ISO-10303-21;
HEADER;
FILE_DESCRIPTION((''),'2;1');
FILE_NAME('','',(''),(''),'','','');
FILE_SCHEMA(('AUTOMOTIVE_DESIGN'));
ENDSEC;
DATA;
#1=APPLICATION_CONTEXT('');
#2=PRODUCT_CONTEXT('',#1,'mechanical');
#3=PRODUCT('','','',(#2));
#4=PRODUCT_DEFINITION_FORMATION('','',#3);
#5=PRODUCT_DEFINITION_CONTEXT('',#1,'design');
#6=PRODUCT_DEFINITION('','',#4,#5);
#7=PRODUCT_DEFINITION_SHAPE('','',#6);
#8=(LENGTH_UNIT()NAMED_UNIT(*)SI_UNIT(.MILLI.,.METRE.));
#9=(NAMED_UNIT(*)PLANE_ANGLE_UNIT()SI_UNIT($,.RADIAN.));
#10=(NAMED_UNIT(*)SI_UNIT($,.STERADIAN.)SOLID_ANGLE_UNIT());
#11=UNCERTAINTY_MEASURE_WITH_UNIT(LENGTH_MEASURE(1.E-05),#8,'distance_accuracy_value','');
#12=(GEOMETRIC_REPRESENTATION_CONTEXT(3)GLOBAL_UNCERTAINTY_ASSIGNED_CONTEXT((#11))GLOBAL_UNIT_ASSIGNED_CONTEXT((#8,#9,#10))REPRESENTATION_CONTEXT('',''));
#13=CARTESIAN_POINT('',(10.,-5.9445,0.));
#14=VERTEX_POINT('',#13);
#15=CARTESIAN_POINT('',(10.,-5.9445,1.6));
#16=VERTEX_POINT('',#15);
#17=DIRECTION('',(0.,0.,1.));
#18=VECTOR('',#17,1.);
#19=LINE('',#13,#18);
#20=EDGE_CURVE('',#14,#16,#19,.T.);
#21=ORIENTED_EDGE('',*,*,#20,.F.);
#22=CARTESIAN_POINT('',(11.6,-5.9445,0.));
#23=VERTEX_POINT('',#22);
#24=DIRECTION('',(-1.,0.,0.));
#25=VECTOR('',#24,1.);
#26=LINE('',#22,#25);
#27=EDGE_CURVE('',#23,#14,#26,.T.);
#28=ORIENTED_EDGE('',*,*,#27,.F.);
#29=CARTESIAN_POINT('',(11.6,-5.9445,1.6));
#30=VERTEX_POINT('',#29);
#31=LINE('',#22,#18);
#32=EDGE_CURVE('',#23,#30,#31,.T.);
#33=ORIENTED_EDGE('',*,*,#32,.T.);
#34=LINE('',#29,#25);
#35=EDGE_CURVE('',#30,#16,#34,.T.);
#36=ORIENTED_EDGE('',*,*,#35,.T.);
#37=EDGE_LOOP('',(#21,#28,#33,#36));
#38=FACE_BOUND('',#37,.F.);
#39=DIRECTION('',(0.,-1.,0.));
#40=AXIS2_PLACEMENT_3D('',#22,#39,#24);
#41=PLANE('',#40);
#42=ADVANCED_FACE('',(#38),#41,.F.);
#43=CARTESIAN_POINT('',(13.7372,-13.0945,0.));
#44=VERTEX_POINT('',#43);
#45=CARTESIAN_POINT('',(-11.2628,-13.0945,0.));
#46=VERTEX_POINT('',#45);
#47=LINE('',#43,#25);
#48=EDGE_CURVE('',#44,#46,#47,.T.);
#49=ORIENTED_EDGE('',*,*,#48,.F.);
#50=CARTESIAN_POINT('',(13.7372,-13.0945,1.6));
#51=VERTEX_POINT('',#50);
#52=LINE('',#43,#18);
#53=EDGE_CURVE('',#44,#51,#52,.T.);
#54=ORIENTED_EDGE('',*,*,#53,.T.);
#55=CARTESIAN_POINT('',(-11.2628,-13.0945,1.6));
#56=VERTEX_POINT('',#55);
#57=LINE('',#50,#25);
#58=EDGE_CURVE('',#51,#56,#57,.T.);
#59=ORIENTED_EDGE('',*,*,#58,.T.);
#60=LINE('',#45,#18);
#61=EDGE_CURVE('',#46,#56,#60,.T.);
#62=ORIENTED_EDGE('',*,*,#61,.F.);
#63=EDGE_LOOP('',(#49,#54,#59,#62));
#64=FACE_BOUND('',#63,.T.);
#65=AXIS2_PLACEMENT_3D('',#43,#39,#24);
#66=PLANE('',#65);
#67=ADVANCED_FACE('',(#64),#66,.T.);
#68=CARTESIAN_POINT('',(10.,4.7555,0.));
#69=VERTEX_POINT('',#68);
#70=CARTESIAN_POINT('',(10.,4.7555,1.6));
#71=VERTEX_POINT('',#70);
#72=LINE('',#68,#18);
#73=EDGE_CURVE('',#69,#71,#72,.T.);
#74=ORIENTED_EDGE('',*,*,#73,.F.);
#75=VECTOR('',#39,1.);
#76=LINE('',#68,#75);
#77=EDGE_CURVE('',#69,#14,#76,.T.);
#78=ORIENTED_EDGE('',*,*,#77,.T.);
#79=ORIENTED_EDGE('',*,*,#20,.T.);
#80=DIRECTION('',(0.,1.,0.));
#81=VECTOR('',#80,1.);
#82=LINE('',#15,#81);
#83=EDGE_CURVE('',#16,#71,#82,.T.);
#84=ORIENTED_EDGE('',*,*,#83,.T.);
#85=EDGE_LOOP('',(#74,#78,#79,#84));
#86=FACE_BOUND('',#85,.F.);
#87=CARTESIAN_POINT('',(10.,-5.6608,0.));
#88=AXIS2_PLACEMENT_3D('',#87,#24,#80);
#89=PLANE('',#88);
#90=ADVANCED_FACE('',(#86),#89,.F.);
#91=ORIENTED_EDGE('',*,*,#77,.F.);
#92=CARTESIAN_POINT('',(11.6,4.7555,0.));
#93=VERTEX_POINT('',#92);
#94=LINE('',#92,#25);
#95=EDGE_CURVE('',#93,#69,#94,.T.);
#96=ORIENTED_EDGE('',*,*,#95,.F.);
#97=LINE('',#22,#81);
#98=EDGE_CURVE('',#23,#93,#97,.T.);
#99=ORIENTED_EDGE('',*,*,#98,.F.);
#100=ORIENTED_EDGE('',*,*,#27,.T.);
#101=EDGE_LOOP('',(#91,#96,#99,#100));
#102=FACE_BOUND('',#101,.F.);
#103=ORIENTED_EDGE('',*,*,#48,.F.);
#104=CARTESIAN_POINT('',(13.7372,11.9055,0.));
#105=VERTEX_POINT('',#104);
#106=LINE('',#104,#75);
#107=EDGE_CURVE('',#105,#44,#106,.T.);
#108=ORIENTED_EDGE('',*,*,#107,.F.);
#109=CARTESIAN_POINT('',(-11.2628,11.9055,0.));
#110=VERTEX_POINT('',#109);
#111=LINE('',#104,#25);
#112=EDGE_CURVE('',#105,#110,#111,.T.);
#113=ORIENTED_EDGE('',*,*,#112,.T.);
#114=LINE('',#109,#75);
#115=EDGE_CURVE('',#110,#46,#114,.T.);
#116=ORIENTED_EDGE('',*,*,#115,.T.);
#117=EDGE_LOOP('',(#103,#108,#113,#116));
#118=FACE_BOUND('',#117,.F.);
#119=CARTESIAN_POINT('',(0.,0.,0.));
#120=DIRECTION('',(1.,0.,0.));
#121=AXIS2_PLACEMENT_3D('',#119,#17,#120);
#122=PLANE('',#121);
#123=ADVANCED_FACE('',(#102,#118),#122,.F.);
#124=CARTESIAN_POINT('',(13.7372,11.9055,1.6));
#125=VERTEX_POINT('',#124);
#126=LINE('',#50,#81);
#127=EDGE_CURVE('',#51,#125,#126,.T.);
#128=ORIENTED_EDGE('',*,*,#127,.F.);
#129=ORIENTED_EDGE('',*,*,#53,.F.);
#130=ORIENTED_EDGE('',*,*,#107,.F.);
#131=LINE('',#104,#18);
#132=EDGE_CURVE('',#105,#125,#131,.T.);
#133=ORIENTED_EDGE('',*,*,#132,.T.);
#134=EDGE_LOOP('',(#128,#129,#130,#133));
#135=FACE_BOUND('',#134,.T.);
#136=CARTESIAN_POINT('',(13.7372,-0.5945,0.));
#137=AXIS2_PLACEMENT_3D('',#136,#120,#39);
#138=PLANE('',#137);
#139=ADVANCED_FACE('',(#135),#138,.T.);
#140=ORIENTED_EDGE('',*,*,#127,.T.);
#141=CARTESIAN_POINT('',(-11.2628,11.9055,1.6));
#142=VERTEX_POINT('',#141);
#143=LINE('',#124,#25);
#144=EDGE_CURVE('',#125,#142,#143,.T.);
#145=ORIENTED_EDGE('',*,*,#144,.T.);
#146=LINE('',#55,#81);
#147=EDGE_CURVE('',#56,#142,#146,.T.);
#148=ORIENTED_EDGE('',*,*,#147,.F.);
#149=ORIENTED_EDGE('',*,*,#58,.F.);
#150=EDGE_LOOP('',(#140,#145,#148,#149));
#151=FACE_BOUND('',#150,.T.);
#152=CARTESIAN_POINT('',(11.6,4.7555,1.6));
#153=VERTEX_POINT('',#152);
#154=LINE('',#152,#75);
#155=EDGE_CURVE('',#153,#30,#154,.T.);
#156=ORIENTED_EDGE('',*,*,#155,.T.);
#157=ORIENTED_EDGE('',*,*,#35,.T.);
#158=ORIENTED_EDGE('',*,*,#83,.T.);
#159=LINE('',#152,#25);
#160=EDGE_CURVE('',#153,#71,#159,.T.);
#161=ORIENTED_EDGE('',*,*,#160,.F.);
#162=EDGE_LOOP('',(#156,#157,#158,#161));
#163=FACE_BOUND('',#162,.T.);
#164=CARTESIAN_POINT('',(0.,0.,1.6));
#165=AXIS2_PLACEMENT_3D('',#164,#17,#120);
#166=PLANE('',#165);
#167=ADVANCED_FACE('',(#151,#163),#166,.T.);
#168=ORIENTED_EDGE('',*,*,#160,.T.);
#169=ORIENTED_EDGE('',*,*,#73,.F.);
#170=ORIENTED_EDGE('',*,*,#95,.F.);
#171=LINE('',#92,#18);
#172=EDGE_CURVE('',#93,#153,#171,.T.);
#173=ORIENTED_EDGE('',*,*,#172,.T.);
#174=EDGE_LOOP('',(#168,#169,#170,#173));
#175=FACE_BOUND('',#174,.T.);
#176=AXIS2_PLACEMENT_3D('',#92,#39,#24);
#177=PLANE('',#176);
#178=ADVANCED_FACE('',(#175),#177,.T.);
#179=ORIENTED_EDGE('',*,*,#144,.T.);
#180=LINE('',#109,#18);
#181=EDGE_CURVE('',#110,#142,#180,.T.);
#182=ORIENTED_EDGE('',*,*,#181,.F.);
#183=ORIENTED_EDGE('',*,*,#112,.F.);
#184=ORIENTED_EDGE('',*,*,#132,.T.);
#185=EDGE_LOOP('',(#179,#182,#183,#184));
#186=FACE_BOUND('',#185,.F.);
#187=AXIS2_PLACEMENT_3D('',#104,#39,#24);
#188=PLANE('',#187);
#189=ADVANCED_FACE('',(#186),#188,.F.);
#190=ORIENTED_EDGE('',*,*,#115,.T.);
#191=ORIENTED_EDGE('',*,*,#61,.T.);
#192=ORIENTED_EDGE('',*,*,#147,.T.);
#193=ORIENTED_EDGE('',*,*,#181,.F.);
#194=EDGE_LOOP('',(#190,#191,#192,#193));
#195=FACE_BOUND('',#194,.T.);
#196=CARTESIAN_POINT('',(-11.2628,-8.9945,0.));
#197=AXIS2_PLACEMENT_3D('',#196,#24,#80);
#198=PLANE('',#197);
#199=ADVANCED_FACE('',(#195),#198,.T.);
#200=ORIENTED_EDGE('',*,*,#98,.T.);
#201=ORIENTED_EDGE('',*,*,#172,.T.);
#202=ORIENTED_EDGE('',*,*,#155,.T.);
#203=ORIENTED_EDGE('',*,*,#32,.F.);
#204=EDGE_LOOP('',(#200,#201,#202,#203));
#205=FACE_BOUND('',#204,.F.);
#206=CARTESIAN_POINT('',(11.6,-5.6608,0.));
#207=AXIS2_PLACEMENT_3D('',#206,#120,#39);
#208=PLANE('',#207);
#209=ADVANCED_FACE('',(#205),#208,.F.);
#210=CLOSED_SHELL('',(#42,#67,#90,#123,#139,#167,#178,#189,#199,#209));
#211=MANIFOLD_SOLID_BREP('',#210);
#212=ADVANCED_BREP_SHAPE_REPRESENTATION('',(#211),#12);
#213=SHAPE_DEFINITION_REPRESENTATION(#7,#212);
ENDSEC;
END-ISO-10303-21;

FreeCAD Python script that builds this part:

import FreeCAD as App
import Part
import Sketcher

V = App.Vector
Q = App.Units.Quantity

doc = App.newDocument("Part")
body = doc.addObject("PartDesign::Body", "Body")

# Sketch on XY plane
sketch1 = body.newObject("Sketcher::SketchObject", "Sketch")
sketch1.AttachmentSupport = (doc.getObject("XY_Plane"), [""])
sketch1.MapMode = "FlatFace"
sketch1.addGeometry([
    Part.LineSegment(V(-11.3, -13.1, 0), V(13.7, -13.1, 0)),  # 0
    Part.LineSegment(V(13.7, -13.1, 0), V(13.7, 11.9, 0)),  # 1
    Part.LineSegment(V(13.7, 11.9, 0), V(-11.3, 11.9, 0)),  # 2
    Part.LineSegment(V(-11.3, 11.9, 0), V(-11.3, -13.1, 0)),  # 3
    Part.LineSegment(V(11.6, -5.9, 0), V(10, -5.9, 0)),  # 4
    Part.LineSegment(V(10, -5.9, 0), V(10, 4.8, 0)),  # 5
    Part.LineSegment(V(10, 4.8, 0), V(11.6, 4.8, 0)),  # 6
    Part.LineSegment(V(11.6, 4.8, 0), V(11.6, -5.9, 0)),  # 7
], False)
sketch1.addConstraint([
    Sketcher.Constraint("Coincident", 0, 2, 1, 1),
    Sketcher.Constraint("Coincident", 1, 2, 2, 1),
    Sketcher.Constraint("Coincident", 2, 2, 3, 1),
    Sketcher.Constraint("Coincident", 3, 2, 0, 1),
    Sketcher.Constraint("Coincident", 4, 2, 5, 1),
    Sketcher.Constraint("Coincident", 5, 2, 6, 1),
    Sketcher.Constraint("Coincident", 6, 2, 7, 1),
    Sketcher.Constraint("Coincident", 7, 2, 4, 1),
    Sketcher.Constraint("Horizontal", 0),
    Sketcher.Constraint("Vertical", 1),
    Sketcher.Constraint("Horizontal", 2),
    Sketcher.Constraint("Vertical", 3),
    Sketcher.Constraint("Horizontal", 4),
    Sketcher.Constraint("Vertical", 5),
    Sketcher.Constraint("Horizontal", 6),
    Sketcher.Constraint("Vertical", 7),
    Sketcher.Constraint("Equal", 2, 1),
    Sketcher.Constraint("DistanceX", 0, 1, 0, 2, Q("25 mm")),
    Sketcher.Constraint("DistanceX", 4, 2, 4, 1, Q("1.6 mm")),
    Sketcher.Constraint("DistanceY", 5, 1, 5, 2, Q("10.7 mm")),
    Sketcher.Constraint("DistanceX", -1, 1, 4, 2, Q("10 mm")),
    Sketcher.Constraint("DistanceY", 0, 2, 4, 2, Q("7.15 mm")),
    Sketcher.Constraint("DistanceX", -1, 1, 0, 2, Q("13.7372 mm")),
    Sketcher.Constraint("DistanceY", 0, 2, -1, 1, Q("13.0945 mm")),
])
pad1 = body.newObject("PartDesign::Pad", "Pad")
pad1.Profile = sketch1
pad1.Length = 1.6

doc.recompute()
